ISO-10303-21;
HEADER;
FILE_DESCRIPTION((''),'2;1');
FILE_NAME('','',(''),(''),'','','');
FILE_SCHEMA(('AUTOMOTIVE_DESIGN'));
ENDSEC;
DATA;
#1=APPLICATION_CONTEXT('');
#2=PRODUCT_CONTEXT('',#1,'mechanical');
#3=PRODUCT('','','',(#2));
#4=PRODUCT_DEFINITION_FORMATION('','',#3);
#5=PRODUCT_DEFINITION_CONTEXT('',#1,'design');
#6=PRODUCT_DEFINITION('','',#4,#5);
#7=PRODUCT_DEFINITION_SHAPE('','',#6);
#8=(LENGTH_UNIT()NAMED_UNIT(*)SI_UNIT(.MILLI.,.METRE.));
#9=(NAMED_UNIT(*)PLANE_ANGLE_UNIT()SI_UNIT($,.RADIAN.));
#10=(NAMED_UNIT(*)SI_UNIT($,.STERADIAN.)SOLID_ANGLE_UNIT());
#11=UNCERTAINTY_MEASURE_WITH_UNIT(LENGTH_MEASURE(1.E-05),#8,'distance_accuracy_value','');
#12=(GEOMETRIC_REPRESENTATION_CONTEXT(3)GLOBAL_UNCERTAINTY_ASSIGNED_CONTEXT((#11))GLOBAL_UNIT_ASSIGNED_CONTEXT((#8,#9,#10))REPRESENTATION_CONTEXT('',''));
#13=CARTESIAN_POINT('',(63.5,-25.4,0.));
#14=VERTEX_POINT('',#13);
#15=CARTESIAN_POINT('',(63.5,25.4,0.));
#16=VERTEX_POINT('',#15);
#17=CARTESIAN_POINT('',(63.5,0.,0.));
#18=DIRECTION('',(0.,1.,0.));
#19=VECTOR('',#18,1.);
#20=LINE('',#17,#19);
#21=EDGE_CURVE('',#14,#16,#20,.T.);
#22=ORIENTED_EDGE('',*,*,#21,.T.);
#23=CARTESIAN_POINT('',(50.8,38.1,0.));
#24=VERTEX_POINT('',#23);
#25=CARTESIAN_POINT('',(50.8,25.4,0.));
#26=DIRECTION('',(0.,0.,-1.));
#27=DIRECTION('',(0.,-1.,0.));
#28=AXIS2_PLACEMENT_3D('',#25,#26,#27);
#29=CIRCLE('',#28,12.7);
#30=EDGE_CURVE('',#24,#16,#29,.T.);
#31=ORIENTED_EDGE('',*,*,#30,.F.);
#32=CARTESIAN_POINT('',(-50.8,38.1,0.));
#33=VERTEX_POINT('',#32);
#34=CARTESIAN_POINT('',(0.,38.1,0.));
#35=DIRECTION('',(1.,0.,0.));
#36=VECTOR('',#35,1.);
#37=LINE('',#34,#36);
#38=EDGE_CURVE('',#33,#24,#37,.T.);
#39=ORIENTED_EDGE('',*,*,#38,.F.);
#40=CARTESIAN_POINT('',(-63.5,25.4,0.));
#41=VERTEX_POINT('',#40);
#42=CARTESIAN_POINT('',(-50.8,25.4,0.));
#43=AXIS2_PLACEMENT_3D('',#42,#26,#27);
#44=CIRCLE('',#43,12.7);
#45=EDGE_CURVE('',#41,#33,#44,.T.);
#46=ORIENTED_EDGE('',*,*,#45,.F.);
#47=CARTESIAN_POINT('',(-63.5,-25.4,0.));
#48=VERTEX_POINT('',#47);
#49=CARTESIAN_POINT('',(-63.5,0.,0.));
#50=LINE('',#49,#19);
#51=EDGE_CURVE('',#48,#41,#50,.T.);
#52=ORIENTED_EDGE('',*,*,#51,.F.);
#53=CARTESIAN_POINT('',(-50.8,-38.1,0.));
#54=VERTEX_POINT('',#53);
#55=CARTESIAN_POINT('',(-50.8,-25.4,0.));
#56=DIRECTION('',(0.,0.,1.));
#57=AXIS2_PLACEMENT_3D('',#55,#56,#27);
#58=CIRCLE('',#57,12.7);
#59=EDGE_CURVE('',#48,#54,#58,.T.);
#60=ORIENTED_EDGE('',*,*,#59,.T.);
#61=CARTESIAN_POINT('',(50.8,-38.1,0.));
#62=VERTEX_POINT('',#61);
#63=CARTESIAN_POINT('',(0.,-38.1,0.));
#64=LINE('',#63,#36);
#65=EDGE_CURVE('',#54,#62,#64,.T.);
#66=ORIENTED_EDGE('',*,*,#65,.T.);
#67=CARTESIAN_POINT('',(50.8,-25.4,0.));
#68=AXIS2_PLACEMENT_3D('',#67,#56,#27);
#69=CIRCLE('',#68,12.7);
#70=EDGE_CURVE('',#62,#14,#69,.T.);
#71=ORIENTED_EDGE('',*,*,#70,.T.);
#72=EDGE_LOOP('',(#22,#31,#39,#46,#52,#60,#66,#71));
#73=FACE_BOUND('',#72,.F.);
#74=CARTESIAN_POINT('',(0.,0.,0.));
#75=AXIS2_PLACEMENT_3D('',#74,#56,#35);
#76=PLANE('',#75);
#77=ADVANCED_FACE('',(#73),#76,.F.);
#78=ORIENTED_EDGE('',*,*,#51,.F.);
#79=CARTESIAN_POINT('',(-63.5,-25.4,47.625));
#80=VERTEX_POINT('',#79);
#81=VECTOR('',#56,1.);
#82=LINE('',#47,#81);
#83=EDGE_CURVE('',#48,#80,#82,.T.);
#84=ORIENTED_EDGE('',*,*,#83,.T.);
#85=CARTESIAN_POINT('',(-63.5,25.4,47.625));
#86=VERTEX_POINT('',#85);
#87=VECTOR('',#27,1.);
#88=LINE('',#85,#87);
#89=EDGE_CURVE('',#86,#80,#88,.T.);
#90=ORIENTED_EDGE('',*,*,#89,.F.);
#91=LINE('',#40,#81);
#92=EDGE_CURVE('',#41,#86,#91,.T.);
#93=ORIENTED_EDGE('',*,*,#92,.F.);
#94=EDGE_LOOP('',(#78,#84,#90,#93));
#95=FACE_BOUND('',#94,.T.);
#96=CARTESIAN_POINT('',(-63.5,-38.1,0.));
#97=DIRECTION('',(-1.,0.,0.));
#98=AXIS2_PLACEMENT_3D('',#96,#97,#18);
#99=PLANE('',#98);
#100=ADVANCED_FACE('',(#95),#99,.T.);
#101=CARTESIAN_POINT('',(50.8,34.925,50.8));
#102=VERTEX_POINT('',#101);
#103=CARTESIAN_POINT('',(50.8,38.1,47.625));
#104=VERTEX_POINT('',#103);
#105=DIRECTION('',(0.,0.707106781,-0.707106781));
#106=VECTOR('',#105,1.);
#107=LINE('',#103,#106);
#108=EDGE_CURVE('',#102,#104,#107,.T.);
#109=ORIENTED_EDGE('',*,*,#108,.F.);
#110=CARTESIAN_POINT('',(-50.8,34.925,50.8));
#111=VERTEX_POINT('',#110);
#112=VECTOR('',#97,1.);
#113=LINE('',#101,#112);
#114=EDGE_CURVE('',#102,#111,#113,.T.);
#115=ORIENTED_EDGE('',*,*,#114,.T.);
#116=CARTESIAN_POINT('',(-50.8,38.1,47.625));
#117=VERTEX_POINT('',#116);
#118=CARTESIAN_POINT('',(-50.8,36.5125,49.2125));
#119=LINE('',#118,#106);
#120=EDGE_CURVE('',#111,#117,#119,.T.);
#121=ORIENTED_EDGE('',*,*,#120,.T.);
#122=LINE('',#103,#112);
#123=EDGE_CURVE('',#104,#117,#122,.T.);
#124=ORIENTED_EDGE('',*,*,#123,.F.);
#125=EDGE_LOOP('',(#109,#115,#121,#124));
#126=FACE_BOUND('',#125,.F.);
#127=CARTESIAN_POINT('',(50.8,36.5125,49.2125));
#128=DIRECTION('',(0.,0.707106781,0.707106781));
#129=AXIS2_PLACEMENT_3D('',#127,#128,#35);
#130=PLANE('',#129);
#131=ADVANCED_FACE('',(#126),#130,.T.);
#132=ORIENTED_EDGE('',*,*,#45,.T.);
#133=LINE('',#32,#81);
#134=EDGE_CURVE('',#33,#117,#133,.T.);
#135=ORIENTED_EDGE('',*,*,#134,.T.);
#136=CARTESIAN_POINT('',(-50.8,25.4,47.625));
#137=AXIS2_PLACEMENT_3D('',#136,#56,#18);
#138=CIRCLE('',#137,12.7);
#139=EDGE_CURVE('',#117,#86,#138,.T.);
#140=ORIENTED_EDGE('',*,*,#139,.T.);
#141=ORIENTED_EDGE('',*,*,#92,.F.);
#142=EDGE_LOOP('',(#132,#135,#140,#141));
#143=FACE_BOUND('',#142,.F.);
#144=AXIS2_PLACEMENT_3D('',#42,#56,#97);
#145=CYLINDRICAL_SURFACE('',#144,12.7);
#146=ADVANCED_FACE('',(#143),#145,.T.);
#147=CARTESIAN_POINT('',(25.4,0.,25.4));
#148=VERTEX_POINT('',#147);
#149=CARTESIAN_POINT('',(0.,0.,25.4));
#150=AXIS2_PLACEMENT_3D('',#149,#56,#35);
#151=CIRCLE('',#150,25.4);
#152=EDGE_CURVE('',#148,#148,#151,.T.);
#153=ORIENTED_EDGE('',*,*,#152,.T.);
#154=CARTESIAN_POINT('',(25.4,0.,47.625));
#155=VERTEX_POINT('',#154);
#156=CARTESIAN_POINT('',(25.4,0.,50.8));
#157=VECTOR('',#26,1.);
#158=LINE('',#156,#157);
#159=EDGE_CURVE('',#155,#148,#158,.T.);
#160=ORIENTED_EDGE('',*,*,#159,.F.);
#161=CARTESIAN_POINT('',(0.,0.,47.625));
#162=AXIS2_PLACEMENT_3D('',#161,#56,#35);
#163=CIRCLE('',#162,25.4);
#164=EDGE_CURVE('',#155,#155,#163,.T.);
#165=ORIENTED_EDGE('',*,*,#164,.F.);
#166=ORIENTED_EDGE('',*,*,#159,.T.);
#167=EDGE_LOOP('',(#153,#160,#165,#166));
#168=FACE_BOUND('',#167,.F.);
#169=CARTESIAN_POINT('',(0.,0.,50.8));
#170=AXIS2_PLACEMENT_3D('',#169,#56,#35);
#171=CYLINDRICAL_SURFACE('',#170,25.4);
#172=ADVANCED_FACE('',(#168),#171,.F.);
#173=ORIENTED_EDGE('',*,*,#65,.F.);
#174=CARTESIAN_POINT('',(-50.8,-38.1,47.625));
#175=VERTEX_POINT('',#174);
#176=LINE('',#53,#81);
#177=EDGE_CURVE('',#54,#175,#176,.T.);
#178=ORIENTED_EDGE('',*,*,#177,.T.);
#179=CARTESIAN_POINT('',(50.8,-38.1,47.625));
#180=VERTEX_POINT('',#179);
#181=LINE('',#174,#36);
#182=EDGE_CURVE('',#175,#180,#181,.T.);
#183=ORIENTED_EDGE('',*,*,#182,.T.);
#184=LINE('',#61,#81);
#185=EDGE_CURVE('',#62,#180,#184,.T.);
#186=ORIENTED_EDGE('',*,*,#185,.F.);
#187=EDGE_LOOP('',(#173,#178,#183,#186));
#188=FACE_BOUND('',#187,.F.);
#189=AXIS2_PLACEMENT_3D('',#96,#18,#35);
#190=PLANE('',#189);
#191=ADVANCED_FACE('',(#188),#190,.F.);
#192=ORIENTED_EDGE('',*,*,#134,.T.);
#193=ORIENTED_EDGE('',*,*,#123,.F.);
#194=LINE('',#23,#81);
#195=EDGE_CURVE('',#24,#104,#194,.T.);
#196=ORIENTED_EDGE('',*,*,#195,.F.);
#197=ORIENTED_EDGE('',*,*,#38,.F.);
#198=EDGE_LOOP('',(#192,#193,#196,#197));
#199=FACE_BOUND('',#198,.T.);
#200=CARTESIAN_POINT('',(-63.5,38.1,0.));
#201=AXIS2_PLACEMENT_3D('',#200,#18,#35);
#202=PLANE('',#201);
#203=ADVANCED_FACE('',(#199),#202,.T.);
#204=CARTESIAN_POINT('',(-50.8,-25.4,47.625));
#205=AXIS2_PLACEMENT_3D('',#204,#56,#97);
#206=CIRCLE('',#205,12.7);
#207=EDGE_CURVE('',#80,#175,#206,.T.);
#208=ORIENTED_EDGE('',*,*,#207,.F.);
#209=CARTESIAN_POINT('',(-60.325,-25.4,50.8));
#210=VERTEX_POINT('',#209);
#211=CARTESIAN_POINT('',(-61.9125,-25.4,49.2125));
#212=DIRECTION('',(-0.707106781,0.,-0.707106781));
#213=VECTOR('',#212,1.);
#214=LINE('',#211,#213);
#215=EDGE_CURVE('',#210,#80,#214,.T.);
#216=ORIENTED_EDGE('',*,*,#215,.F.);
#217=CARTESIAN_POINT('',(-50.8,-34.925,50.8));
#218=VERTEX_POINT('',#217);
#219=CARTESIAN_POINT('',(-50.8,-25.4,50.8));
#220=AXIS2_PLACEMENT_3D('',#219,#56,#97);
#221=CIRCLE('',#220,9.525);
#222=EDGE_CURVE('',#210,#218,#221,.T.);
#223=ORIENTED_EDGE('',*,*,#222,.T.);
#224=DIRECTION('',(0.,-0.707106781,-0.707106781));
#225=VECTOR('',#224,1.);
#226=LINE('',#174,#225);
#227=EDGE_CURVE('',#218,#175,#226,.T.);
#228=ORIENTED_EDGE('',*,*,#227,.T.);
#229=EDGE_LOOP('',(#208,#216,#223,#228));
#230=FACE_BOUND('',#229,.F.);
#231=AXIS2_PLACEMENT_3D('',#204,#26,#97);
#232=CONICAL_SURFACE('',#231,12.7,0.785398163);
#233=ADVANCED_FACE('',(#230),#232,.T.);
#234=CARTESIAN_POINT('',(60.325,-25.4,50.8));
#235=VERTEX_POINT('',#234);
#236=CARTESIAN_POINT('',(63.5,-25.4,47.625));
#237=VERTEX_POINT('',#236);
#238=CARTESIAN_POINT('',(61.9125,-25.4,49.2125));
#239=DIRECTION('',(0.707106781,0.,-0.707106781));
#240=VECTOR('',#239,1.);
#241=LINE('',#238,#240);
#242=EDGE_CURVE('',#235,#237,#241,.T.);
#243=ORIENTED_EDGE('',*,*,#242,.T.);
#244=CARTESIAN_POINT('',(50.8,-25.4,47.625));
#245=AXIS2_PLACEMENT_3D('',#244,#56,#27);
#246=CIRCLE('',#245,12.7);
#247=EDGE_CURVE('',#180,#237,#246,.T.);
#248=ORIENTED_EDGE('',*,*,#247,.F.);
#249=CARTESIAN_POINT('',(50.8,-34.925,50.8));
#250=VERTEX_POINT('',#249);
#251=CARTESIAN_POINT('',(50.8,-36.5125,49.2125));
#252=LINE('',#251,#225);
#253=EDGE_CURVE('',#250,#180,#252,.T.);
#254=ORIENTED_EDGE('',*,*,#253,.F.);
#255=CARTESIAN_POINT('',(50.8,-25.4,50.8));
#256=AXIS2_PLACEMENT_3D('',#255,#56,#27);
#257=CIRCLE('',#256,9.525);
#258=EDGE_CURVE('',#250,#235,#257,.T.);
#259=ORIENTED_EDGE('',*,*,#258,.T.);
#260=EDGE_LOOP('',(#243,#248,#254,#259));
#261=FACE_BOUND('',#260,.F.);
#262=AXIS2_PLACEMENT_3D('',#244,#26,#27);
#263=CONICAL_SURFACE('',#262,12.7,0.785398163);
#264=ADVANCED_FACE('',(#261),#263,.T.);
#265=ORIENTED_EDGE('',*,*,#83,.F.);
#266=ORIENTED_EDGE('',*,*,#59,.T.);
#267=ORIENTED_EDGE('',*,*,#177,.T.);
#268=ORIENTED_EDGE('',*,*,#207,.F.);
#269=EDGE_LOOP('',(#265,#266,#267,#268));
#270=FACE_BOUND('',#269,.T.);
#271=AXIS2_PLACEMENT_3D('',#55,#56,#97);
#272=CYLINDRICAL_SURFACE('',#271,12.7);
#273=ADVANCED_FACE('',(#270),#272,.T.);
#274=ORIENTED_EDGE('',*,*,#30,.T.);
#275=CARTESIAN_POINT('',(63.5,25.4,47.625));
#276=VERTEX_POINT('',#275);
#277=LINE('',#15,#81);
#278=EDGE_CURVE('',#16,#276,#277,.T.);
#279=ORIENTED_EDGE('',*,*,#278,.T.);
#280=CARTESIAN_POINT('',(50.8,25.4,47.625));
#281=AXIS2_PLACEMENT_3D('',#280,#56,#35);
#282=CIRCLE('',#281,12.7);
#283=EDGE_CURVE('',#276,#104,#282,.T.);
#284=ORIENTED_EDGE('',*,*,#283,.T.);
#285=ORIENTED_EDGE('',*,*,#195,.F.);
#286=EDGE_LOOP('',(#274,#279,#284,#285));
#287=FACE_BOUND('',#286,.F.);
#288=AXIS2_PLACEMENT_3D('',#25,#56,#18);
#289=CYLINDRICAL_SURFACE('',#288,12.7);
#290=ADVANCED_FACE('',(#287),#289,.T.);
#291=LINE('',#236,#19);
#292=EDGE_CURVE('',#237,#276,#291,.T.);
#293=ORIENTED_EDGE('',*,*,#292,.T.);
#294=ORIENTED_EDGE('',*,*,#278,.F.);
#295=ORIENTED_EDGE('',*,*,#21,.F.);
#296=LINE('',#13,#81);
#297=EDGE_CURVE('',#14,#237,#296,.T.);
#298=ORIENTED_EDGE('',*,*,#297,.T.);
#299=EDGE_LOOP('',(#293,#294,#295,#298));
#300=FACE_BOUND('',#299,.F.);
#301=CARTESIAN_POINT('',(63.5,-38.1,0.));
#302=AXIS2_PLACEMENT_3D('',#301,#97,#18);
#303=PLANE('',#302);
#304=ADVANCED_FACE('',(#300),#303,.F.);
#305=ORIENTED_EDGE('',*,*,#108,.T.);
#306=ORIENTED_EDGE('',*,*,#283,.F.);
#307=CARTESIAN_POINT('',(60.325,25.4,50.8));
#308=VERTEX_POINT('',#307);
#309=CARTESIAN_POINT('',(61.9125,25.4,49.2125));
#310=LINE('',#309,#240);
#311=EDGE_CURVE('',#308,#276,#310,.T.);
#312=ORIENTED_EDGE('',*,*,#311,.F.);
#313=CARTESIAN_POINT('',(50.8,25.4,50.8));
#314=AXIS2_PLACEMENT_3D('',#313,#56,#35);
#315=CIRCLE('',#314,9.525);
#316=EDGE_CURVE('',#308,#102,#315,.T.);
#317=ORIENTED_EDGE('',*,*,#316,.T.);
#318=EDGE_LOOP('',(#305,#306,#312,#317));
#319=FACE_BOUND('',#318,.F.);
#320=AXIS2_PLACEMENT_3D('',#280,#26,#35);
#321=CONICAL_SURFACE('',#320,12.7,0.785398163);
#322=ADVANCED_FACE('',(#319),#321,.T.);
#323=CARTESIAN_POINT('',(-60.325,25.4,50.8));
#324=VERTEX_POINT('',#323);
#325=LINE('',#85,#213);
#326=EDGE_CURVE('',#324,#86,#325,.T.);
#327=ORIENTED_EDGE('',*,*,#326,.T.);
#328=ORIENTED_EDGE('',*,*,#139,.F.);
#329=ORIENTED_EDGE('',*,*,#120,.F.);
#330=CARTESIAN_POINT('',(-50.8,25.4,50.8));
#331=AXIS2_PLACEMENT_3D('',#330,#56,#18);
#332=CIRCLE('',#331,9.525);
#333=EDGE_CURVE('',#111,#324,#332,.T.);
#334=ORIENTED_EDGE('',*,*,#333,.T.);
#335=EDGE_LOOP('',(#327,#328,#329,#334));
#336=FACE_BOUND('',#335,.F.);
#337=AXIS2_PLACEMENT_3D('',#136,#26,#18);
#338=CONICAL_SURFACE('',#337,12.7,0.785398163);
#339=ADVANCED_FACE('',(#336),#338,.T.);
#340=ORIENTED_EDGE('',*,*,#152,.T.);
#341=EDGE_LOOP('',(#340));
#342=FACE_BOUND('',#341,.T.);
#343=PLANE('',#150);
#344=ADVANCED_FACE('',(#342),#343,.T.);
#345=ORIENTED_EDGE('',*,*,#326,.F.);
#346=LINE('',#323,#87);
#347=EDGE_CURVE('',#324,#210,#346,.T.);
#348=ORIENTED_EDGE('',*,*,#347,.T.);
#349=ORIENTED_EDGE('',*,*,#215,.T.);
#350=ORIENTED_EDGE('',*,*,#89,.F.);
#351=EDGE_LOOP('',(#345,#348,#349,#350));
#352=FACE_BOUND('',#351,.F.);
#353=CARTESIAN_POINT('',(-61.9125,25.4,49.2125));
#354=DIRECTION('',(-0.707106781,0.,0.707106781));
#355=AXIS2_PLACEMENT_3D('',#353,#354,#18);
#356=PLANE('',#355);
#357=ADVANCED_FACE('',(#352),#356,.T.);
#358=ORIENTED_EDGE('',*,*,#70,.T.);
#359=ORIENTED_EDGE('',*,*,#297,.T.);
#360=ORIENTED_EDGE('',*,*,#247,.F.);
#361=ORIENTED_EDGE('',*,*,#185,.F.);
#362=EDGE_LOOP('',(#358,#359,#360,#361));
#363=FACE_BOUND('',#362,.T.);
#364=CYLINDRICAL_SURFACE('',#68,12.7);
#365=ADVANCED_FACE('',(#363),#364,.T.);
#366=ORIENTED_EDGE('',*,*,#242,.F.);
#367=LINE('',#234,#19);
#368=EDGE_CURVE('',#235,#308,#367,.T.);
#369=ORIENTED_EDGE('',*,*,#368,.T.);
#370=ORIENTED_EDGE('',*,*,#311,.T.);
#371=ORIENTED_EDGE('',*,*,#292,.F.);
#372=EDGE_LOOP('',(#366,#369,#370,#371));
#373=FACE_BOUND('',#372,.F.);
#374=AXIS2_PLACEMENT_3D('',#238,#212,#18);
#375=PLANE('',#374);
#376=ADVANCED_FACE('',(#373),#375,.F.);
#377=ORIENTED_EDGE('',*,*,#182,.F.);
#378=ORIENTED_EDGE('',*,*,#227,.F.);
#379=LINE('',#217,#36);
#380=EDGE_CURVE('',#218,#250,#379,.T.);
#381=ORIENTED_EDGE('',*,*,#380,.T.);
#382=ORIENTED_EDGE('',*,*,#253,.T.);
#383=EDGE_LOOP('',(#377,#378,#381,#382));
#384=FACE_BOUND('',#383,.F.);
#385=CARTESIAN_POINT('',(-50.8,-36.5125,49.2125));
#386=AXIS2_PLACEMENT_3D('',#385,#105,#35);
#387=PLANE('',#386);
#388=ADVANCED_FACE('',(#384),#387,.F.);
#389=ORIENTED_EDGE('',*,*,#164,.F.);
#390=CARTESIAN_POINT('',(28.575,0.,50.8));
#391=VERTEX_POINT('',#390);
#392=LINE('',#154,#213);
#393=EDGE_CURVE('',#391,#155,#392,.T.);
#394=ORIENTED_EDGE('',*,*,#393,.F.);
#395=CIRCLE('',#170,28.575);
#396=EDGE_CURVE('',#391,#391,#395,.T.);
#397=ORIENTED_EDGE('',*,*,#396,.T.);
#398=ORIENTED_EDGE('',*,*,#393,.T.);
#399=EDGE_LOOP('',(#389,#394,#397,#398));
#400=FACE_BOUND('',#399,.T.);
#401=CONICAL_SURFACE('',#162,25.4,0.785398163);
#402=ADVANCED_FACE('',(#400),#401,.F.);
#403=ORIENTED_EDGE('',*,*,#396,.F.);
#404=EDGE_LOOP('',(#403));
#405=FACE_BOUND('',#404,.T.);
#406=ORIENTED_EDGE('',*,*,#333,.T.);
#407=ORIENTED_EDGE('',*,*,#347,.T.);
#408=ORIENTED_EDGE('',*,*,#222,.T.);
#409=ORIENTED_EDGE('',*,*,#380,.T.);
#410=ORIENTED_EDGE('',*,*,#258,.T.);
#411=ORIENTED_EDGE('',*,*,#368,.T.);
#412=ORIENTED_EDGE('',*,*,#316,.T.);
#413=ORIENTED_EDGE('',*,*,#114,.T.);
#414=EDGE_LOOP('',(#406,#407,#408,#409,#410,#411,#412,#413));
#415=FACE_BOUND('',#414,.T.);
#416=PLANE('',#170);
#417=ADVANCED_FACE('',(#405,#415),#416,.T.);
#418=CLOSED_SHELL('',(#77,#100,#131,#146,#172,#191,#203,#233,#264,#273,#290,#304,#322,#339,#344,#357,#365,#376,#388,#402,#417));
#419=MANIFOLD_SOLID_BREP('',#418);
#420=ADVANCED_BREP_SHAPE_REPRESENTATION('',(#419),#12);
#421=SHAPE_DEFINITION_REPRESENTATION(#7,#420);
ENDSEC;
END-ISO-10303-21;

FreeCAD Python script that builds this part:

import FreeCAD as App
import Part
import Sketcher

V = App.Vector
Q = App.Units.Quantity


def edges_at(feature, points):
    """Names of the edges that pass closest to the given points."""
    edges = feature.Shape.Edges
    near = lambda p: min(range(len(edges)), key=lambda i: edges[i].distToShape(Part.Vertex(*p))[0])
    return sorted({f"Edge{near(p) + 1}" for p in points})

doc = App.newDocument("Part")
body = doc.addObject("PartDesign::Body", "Body")

# Sketch on XY plane
sketch1 = body.newObject("Sketcher::SketchObject", "Sketch")
sketch1.AttachmentSupport = (doc.getObject("XY_Plane"), [""])
sketch1.MapMode = "FlatFace"
sketch1.addGeometry([
    Part.LineSegment(V(-63.5, 38.1, 0), V(-63.5, -38.1, 0)),
    Part.LineSegment(V(-63.5, -38.1, 0), V(63.5, -38.1, 0)),
    Part.LineSegment(V(63.5, -38.1, 0), V(63.5, 38.1, 0)),
    Part.LineSegment(V(63.5, 38.1, 0), V(-63.5, 38.1, 0)),
], False)
sketch1.addConstraint([
    Sketcher.Constraint("Coincident", 0, 2, 1, 1),
    Sketcher.Constraint("Coincident", 1, 2, 2, 1),
    Sketcher.Constraint("Coincident", 2, 2, 3, 1),
    Sketcher.Constraint("Coincident", 3, 2, 0, 1),
    Sketcher.Constraint("Vertical", 0),
    Sketcher.Constraint("Horizontal", 1),
    Sketcher.Constraint("Vertical", 2),
    Sketcher.Constraint("Horizontal", 3),
    Sketcher.Constraint("Symmetric", 0, 2, 2, 2, -1, 1),
    Sketcher.Constraint("DistanceX", 1, 1, 1, 2, Q("5 in")),
    Sketcher.Constraint("DistanceY", 0, 2, 0, 1, Q("3 in")),
])
pad1 = body.newObject("PartDesign::Pad", "Pad")
pad1.Profile = sketch1
pad1.Length = Q("2 in")

# Sketch on XY plane
sketch2 = body.newObject("Sketcher::SketchObject", "Sketch001")
sketch2.AttachmentSupport = (doc.getObject("XY_Plane"), [""])
sketch2.MapMode = "FlatFace"
sketch2.AttachmentOffset = App.Placement(V(0, 0, 2 * 25.4), App.Rotation())
sketch2.addGeometry(Part.Circle(V(0, 0, 0), V(0, 0, 1), 25.4), False)
sketch2.addConstraint([
    Sketcher.Constraint("Coincident", 0, 3, -1, 1),
    Sketcher.Constraint("Diameter", 0, Q("2 in")),
])
pocket1 = body.newObject("PartDesign::Pocket", "Pocket")
pocket1.Profile = sketch2
pocket1.Length = Q("1 in")
doc.recompute()

fillet = body.newObject("PartDesign::Fillet", "Fillet")
fillet.Base = (pocket1, edges_at(pocket1, [
    (-63.5, -38.1, 25.4),
    (63.5, -38.1, 25.4),
    (63.5, 38.1, 25.4),
    (-63.5, 38.1, 25.4),
]))
fillet.Radius = Q("0.5 in")
doc.recompute()

chamfer = body.newObject("PartDesign::Chamfer", "Chamfer")
chamfer.Base = (fillet, edges_at(fillet, [
    (63.5, 0, 50.8),
    (59.78, -34.38, 50.8),
    (59.78, 34.38, 50.8),
    (0, -38.1, 50.8),
    (0, 38.1, 50.8),
    (-59.78, -34.38, 50.8),
    (-59.78, 34.38, 50.8),
    (-63.5, 0, 50.8),
    (-25.4, 0, 50.8),
]))
chamfer.Size = Q("0.125 in")

doc.recompute()
